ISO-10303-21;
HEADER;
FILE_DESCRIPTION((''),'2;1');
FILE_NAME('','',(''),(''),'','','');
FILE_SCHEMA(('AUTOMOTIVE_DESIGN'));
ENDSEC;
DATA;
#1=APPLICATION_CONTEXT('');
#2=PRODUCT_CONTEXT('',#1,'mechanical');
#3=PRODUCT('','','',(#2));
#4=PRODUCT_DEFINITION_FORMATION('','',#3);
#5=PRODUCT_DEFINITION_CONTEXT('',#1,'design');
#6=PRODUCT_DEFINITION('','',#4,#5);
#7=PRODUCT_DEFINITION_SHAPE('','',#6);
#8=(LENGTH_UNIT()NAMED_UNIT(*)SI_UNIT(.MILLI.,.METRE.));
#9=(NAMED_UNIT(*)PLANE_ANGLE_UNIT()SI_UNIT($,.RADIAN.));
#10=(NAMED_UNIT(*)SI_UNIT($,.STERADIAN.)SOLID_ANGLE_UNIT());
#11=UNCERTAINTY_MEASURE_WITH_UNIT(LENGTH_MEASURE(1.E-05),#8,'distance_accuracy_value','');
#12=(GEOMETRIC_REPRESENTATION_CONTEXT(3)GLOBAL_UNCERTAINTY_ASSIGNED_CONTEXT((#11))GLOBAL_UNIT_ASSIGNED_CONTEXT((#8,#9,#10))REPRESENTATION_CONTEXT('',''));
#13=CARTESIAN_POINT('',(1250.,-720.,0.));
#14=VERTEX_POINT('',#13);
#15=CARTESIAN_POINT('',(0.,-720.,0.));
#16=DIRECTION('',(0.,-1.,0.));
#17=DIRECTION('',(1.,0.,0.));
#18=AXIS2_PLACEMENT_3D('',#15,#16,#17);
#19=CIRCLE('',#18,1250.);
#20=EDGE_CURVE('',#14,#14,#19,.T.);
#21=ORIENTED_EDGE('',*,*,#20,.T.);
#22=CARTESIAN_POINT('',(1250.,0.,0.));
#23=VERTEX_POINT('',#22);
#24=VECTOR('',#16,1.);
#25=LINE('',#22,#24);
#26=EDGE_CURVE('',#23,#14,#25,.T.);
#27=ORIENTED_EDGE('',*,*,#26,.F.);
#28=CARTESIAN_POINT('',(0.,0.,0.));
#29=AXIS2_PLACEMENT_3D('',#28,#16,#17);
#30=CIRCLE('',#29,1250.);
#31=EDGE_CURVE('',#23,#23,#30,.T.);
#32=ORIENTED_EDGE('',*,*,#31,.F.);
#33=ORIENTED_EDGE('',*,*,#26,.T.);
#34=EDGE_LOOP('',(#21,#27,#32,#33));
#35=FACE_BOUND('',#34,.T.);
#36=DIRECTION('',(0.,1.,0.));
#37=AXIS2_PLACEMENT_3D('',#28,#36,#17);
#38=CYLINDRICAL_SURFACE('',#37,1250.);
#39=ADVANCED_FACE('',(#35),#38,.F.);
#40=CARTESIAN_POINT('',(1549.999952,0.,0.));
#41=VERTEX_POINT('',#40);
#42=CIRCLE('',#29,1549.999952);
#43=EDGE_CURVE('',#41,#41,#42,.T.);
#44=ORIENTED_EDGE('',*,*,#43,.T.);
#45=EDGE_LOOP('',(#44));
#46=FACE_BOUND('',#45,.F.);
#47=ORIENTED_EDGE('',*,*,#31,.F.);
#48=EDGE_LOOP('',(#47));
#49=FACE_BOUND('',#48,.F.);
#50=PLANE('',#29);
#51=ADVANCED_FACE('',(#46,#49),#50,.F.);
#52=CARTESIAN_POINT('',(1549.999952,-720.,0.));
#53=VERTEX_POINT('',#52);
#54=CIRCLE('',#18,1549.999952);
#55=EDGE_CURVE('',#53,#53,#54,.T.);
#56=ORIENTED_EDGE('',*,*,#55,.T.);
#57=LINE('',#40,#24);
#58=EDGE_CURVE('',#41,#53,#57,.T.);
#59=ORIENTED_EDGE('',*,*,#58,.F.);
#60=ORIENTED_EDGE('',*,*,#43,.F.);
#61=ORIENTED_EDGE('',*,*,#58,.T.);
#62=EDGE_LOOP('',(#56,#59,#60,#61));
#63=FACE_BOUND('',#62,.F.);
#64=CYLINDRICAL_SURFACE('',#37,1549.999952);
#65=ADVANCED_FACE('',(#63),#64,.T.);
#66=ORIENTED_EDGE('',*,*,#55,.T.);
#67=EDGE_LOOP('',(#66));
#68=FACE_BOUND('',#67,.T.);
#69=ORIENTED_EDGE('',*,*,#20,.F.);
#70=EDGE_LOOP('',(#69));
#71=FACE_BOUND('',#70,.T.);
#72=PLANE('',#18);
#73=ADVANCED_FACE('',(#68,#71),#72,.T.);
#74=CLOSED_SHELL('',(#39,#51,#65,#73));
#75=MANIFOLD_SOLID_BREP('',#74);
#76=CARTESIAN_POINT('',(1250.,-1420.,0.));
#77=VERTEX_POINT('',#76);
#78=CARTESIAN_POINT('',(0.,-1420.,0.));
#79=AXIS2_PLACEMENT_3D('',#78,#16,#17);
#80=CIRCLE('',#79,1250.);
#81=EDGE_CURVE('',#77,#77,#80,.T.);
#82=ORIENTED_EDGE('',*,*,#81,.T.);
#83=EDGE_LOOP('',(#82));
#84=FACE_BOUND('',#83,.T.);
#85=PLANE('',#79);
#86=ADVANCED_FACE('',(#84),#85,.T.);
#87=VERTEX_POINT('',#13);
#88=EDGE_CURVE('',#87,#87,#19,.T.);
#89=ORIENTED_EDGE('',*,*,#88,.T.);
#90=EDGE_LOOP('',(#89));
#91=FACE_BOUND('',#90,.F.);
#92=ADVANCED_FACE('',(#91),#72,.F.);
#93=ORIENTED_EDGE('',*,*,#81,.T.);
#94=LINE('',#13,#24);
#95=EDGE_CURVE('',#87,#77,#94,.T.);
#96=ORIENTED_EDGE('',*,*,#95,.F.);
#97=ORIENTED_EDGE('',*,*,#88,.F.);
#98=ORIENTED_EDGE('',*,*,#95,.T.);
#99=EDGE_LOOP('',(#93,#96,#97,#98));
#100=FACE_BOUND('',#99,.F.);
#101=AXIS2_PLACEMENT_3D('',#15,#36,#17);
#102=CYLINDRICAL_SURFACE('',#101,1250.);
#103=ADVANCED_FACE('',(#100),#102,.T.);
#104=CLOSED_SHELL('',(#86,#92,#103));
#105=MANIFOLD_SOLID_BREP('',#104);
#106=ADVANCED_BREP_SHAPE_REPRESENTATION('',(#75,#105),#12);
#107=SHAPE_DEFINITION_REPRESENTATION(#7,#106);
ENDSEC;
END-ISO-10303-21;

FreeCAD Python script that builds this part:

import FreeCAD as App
import Part
import Sketcher
Q = App.Units.Quantity

doc = App.newDocument("Part")
body = doc.addObject("PartDesign::Body", "Body")

# Sketch on XZ plane
sketch1 = body.newObject("Sketcher::SketchObject", "Sketch")
sketch1.AttachmentSupport = (doc.getObject("XZ_Plane"), [""])
sketch1.MapMode = "FlatFace"
sketch1.addGeometry([
    Part.Circle(App.Vector(0, 0, 0), App.Vector(0, 0, 1), 1549.999952),
    Part.Circle(App.Vector(0, 0, 0), App.Vector(0, 0, 1), 1250),
], False)
sketch1.addConstraint([
    Sketcher.Constraint("Coincident", 0, 3, -1, 1),
    Sketcher.Constraint("Coincident", 1, 3, -1, 1),
    Sketcher.Constraint("Diameter", 1, Q("2500 mm")),
    Sketcher.Constraint("Diameter", 0, Q("3099.999904 mm")),
])
pad1 = body.newObject("PartDesign::Pad", "Pad")
pad1.Profile = sketch1
pad1.Length = 720
body2 = doc.addObject("PartDesign::Body", "Body001")

# Sketch on XZ plane
sketch2 = body2.newObject("Sketcher::SketchObject", "Sketch001")
sketch2.AttachmentSupport = (doc.getObject("XZ_Plane001"), [""])
sketch2.MapMode = "FlatFace"
sketch2.AttachmentOffset = App.Placement(App.Vector(0, 0, 720), App.Rotation())
sketch2.addGeometry(Part.Circle(App.Vector(0, 0, 0), App.Vector(0, 0, 1), 1250), False)
sketch2.addConstraint([
    Sketcher.Constraint("Coincident", 0, 3, -1, 1),
    Sketcher.Constraint("Diameter", 0, Q("2500 mm")),
])
pad2 = body2.newObject("PartDesign::Pad", "Pad001")
pad2.Profile = sketch2
pad2.Length = 700

doc.recompute()
